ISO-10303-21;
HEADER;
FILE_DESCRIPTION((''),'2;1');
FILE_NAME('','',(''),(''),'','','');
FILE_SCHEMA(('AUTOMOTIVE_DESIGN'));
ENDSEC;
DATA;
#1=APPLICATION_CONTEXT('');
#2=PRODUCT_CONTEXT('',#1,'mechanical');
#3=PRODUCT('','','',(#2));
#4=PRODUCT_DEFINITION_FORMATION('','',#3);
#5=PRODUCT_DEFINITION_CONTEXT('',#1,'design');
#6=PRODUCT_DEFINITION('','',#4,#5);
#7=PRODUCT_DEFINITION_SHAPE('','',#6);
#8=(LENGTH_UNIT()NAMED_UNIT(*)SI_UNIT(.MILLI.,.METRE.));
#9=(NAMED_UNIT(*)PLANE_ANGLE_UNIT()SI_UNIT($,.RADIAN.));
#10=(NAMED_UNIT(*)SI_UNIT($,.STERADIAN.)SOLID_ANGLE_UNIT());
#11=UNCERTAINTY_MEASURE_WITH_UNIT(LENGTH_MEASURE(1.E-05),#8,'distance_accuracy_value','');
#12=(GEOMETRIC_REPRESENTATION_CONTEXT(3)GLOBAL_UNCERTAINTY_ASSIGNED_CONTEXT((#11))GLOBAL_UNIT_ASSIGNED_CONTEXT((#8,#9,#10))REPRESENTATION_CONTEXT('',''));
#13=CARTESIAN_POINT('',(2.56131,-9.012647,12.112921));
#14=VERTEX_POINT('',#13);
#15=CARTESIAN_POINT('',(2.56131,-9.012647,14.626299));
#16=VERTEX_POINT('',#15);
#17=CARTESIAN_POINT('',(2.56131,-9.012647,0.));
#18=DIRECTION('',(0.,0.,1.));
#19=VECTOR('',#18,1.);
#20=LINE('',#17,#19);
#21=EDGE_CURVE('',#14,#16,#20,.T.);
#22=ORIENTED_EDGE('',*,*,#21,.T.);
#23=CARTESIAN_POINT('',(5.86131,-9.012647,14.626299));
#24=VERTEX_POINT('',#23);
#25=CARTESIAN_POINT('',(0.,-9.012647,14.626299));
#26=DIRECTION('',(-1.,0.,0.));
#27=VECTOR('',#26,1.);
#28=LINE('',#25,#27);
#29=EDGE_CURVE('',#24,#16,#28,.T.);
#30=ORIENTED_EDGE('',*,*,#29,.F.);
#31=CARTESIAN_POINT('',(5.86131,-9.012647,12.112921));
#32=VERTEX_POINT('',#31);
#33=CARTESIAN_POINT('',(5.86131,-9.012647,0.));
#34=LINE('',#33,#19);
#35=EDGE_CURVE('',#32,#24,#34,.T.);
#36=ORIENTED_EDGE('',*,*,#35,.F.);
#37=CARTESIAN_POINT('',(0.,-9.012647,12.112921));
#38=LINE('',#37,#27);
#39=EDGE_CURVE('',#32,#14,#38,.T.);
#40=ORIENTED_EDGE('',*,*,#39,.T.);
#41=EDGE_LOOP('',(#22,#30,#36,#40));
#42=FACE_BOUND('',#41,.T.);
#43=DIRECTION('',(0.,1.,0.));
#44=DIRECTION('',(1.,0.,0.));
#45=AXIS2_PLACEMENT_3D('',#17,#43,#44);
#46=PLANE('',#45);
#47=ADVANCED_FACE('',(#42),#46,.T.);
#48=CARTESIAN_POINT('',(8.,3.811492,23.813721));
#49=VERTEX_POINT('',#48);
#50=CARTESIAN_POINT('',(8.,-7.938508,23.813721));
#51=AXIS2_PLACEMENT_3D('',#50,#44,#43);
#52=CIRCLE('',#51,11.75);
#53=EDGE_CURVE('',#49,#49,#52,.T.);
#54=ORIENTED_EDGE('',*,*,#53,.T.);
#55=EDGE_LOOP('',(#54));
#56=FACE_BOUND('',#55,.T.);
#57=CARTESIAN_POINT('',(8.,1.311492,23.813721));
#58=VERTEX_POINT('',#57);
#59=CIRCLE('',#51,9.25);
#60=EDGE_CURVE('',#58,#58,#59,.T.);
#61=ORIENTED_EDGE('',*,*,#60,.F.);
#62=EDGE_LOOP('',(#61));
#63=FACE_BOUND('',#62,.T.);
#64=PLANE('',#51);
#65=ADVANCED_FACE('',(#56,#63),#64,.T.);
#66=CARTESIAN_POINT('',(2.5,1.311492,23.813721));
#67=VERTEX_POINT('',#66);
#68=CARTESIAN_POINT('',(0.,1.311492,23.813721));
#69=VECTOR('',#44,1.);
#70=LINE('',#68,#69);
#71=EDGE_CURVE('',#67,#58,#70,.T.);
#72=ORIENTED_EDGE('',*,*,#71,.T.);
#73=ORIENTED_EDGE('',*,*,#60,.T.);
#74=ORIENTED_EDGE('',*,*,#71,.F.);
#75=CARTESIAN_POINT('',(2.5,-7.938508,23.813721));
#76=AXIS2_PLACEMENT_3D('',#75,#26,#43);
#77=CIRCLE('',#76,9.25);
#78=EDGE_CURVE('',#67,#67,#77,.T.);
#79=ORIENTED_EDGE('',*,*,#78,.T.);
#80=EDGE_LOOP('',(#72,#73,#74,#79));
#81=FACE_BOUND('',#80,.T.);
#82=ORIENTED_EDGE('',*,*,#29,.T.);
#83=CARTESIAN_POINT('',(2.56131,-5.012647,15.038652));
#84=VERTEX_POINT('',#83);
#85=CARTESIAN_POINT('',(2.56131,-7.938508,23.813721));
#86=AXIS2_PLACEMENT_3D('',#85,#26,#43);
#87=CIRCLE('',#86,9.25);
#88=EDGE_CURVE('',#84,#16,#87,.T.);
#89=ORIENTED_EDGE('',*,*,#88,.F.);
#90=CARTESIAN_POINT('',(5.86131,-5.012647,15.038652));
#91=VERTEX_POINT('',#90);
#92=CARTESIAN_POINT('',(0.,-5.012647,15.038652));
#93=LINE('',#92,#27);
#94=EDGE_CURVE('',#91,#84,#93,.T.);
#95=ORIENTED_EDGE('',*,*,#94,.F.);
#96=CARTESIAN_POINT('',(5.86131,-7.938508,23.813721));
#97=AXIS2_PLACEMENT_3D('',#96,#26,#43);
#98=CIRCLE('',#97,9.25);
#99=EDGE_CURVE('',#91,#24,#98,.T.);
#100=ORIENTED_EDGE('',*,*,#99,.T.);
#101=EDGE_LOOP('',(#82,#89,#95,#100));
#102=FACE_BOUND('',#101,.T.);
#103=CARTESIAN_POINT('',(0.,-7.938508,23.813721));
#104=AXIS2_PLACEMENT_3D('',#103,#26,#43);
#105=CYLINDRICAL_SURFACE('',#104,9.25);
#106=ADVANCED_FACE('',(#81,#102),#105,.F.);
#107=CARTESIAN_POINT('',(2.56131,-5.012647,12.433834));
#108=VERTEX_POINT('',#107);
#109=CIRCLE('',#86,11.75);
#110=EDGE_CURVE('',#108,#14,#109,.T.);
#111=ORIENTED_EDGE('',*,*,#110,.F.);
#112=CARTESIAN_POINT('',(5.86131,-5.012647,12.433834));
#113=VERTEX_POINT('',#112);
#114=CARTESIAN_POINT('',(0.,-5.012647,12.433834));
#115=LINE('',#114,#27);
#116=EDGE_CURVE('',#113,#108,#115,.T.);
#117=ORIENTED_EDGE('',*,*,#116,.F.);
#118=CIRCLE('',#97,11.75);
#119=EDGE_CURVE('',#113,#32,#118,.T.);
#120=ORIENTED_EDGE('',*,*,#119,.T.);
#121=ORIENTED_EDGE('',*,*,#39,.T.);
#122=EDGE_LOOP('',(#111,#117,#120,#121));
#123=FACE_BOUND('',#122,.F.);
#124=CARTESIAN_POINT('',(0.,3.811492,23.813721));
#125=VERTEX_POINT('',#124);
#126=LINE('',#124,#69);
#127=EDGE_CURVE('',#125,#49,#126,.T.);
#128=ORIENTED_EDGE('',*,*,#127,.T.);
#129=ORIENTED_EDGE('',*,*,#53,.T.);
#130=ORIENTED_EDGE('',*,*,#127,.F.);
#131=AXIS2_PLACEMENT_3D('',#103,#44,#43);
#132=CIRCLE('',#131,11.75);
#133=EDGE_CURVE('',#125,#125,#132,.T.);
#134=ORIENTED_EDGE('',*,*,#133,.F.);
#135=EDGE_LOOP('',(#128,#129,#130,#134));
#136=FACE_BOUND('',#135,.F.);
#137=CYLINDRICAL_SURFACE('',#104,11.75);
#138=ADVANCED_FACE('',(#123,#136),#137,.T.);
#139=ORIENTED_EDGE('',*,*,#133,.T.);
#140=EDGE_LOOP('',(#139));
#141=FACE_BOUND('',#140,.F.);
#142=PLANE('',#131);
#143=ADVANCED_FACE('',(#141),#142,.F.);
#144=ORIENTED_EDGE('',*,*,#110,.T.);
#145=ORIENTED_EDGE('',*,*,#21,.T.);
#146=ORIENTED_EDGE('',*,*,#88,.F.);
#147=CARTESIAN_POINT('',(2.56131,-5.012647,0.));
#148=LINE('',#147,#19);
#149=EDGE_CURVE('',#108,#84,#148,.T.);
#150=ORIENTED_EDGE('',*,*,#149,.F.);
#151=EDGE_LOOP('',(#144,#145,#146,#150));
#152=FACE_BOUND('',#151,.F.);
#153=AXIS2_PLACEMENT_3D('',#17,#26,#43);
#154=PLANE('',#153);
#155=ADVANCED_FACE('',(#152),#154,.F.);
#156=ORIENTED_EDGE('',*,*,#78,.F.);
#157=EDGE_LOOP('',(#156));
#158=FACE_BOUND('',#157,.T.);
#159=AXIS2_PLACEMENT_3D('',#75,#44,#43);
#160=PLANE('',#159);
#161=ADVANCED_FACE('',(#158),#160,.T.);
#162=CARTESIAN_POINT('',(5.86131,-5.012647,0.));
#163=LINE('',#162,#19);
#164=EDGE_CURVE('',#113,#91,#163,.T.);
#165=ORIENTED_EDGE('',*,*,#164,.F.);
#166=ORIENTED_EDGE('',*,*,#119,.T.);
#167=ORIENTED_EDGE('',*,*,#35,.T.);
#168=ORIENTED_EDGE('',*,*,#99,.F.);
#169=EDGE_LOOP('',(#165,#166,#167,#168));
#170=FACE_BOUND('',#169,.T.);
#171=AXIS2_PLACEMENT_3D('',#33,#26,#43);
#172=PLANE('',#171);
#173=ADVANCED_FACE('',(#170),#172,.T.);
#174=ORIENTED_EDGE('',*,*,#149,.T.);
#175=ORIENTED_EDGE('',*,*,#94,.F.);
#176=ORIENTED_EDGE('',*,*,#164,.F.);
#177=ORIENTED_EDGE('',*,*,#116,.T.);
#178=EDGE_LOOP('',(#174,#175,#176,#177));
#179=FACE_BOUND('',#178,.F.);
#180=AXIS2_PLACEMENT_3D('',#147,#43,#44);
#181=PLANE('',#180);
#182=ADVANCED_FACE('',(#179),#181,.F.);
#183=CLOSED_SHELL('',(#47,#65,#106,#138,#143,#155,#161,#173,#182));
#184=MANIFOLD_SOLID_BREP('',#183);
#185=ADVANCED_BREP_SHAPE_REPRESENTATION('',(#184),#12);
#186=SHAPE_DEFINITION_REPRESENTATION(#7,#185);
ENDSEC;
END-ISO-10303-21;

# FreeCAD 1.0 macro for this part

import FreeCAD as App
import Part
import Sketcher

V = App.Vector
Q = App.Units.Quantity


def faces_at(feature, points):
    """Names of the faces that lie closest to the given points."""
    faces = feature.Shape.Faces
    near = lambda p: min(range(len(faces)), key=lambda i: faces[i].distToShape(Part.Vertex(*p))[0])
    return sorted({f"Face{near(p) + 1}" for p in points})


def add_polygon(sketch, points):
    """Adds a closed chain of lines whose ends are joined by coincident constraints."""
    first, n = sketch.GeometryCount, len(points)
    for a, b in zip(points, points[1:] + points[:1]):
        sketch.addGeometry(Part.LineSegment(App.Vector(*a, 0), App.Vector(*b, 0)), False)
    for i in range(n):
        sketch.addConstraint(Sketcher.Constraint("Coincident", first + i, 2, first + (i + 1) % n, 1))

doc = App.newDocument("Part")
body = doc.addObject("PartDesign::Body", "Body")

# Sketch on YZ plane
sketch1 = doc.addObject("Sketcher::SketchObject", "Sketch")
body.addObject(sketch1)
sketch1.AttachmentSupport = (doc.YZ_Plane, [""])
sketch1.MapMode = "FlatFace"
sketch1.addGeometry(Part.Circle(V(-8, 24, 0), V(0, 0, 1), 12), False)
sketch1.addConstraint([
    Sketcher.Constraint("Diameter", 0, Q("23.5 mm")),
    Sketcher.Constraint("DistanceY", -1, 1, 0, 3, Q("23.813721 mm")),
    Sketcher.Constraint("DistanceX", 0, 3, -1, 1, Q("7.938508 mm")),
])
pad1 = doc.addObject("PartDesign::Pad", "Pad")
body.addObject(pad1)
pad1.Profile = sketch1
pad1.Length = 8
doc.recompute()

thickness = doc.addObject("PartDesign::Thickness", "Thickness")
body.addObject(thickness)
thickness.Base = (pad1, faces_at(pad1, [(8, -7.939, 23.814)]))
thickness.Value = 2.5
thickness.Reversed = True
thickness.Join = "Arc"

# Sketch on XY plane
sketch2 = doc.addObject("Sketcher::SketchObject", "Sketch001")
body.addObject(sketch2)
sketch2.AttachmentSupport = (doc.XY_Plane, [""])
sketch2.MapMode = "FlatFace"
add_polygon(sketch2, [(2.6, -5), (2.6, -9), (5.9, -9), (5.9, -5)])  # lines 0-3
sketch2.addConstraint([
    Sketcher.Constraint("Vertical", 0),
    Sketcher.Constraint("Horizontal", 1),
    Sketcher.Constraint("Vertical", 2),
    Sketcher.Constraint("Horizontal", 3),
    Sketcher.Constraint("DistanceY", 0, 2, 0, 1, Q("4 mm")),
    Sketcher.Constraint("DistanceX", 1, 1, 1, 2, Q("3.3 mm")),
    Sketcher.Constraint("DistanceX", -1, 1, 0, 2, Q("2.56131 mm")),
    Sketcher.Constraint("DistanceY", 0, 2, -1, 1, Q("9.012647 mm")),
])
pocket1 = doc.addObject("PartDesign::Pocket", "Pocket")
body.addObject(pocket1)
pocket1.Profile = sketch2
pocket1.Length = 25
pocket1.Reversed = True

doc.recompute()
